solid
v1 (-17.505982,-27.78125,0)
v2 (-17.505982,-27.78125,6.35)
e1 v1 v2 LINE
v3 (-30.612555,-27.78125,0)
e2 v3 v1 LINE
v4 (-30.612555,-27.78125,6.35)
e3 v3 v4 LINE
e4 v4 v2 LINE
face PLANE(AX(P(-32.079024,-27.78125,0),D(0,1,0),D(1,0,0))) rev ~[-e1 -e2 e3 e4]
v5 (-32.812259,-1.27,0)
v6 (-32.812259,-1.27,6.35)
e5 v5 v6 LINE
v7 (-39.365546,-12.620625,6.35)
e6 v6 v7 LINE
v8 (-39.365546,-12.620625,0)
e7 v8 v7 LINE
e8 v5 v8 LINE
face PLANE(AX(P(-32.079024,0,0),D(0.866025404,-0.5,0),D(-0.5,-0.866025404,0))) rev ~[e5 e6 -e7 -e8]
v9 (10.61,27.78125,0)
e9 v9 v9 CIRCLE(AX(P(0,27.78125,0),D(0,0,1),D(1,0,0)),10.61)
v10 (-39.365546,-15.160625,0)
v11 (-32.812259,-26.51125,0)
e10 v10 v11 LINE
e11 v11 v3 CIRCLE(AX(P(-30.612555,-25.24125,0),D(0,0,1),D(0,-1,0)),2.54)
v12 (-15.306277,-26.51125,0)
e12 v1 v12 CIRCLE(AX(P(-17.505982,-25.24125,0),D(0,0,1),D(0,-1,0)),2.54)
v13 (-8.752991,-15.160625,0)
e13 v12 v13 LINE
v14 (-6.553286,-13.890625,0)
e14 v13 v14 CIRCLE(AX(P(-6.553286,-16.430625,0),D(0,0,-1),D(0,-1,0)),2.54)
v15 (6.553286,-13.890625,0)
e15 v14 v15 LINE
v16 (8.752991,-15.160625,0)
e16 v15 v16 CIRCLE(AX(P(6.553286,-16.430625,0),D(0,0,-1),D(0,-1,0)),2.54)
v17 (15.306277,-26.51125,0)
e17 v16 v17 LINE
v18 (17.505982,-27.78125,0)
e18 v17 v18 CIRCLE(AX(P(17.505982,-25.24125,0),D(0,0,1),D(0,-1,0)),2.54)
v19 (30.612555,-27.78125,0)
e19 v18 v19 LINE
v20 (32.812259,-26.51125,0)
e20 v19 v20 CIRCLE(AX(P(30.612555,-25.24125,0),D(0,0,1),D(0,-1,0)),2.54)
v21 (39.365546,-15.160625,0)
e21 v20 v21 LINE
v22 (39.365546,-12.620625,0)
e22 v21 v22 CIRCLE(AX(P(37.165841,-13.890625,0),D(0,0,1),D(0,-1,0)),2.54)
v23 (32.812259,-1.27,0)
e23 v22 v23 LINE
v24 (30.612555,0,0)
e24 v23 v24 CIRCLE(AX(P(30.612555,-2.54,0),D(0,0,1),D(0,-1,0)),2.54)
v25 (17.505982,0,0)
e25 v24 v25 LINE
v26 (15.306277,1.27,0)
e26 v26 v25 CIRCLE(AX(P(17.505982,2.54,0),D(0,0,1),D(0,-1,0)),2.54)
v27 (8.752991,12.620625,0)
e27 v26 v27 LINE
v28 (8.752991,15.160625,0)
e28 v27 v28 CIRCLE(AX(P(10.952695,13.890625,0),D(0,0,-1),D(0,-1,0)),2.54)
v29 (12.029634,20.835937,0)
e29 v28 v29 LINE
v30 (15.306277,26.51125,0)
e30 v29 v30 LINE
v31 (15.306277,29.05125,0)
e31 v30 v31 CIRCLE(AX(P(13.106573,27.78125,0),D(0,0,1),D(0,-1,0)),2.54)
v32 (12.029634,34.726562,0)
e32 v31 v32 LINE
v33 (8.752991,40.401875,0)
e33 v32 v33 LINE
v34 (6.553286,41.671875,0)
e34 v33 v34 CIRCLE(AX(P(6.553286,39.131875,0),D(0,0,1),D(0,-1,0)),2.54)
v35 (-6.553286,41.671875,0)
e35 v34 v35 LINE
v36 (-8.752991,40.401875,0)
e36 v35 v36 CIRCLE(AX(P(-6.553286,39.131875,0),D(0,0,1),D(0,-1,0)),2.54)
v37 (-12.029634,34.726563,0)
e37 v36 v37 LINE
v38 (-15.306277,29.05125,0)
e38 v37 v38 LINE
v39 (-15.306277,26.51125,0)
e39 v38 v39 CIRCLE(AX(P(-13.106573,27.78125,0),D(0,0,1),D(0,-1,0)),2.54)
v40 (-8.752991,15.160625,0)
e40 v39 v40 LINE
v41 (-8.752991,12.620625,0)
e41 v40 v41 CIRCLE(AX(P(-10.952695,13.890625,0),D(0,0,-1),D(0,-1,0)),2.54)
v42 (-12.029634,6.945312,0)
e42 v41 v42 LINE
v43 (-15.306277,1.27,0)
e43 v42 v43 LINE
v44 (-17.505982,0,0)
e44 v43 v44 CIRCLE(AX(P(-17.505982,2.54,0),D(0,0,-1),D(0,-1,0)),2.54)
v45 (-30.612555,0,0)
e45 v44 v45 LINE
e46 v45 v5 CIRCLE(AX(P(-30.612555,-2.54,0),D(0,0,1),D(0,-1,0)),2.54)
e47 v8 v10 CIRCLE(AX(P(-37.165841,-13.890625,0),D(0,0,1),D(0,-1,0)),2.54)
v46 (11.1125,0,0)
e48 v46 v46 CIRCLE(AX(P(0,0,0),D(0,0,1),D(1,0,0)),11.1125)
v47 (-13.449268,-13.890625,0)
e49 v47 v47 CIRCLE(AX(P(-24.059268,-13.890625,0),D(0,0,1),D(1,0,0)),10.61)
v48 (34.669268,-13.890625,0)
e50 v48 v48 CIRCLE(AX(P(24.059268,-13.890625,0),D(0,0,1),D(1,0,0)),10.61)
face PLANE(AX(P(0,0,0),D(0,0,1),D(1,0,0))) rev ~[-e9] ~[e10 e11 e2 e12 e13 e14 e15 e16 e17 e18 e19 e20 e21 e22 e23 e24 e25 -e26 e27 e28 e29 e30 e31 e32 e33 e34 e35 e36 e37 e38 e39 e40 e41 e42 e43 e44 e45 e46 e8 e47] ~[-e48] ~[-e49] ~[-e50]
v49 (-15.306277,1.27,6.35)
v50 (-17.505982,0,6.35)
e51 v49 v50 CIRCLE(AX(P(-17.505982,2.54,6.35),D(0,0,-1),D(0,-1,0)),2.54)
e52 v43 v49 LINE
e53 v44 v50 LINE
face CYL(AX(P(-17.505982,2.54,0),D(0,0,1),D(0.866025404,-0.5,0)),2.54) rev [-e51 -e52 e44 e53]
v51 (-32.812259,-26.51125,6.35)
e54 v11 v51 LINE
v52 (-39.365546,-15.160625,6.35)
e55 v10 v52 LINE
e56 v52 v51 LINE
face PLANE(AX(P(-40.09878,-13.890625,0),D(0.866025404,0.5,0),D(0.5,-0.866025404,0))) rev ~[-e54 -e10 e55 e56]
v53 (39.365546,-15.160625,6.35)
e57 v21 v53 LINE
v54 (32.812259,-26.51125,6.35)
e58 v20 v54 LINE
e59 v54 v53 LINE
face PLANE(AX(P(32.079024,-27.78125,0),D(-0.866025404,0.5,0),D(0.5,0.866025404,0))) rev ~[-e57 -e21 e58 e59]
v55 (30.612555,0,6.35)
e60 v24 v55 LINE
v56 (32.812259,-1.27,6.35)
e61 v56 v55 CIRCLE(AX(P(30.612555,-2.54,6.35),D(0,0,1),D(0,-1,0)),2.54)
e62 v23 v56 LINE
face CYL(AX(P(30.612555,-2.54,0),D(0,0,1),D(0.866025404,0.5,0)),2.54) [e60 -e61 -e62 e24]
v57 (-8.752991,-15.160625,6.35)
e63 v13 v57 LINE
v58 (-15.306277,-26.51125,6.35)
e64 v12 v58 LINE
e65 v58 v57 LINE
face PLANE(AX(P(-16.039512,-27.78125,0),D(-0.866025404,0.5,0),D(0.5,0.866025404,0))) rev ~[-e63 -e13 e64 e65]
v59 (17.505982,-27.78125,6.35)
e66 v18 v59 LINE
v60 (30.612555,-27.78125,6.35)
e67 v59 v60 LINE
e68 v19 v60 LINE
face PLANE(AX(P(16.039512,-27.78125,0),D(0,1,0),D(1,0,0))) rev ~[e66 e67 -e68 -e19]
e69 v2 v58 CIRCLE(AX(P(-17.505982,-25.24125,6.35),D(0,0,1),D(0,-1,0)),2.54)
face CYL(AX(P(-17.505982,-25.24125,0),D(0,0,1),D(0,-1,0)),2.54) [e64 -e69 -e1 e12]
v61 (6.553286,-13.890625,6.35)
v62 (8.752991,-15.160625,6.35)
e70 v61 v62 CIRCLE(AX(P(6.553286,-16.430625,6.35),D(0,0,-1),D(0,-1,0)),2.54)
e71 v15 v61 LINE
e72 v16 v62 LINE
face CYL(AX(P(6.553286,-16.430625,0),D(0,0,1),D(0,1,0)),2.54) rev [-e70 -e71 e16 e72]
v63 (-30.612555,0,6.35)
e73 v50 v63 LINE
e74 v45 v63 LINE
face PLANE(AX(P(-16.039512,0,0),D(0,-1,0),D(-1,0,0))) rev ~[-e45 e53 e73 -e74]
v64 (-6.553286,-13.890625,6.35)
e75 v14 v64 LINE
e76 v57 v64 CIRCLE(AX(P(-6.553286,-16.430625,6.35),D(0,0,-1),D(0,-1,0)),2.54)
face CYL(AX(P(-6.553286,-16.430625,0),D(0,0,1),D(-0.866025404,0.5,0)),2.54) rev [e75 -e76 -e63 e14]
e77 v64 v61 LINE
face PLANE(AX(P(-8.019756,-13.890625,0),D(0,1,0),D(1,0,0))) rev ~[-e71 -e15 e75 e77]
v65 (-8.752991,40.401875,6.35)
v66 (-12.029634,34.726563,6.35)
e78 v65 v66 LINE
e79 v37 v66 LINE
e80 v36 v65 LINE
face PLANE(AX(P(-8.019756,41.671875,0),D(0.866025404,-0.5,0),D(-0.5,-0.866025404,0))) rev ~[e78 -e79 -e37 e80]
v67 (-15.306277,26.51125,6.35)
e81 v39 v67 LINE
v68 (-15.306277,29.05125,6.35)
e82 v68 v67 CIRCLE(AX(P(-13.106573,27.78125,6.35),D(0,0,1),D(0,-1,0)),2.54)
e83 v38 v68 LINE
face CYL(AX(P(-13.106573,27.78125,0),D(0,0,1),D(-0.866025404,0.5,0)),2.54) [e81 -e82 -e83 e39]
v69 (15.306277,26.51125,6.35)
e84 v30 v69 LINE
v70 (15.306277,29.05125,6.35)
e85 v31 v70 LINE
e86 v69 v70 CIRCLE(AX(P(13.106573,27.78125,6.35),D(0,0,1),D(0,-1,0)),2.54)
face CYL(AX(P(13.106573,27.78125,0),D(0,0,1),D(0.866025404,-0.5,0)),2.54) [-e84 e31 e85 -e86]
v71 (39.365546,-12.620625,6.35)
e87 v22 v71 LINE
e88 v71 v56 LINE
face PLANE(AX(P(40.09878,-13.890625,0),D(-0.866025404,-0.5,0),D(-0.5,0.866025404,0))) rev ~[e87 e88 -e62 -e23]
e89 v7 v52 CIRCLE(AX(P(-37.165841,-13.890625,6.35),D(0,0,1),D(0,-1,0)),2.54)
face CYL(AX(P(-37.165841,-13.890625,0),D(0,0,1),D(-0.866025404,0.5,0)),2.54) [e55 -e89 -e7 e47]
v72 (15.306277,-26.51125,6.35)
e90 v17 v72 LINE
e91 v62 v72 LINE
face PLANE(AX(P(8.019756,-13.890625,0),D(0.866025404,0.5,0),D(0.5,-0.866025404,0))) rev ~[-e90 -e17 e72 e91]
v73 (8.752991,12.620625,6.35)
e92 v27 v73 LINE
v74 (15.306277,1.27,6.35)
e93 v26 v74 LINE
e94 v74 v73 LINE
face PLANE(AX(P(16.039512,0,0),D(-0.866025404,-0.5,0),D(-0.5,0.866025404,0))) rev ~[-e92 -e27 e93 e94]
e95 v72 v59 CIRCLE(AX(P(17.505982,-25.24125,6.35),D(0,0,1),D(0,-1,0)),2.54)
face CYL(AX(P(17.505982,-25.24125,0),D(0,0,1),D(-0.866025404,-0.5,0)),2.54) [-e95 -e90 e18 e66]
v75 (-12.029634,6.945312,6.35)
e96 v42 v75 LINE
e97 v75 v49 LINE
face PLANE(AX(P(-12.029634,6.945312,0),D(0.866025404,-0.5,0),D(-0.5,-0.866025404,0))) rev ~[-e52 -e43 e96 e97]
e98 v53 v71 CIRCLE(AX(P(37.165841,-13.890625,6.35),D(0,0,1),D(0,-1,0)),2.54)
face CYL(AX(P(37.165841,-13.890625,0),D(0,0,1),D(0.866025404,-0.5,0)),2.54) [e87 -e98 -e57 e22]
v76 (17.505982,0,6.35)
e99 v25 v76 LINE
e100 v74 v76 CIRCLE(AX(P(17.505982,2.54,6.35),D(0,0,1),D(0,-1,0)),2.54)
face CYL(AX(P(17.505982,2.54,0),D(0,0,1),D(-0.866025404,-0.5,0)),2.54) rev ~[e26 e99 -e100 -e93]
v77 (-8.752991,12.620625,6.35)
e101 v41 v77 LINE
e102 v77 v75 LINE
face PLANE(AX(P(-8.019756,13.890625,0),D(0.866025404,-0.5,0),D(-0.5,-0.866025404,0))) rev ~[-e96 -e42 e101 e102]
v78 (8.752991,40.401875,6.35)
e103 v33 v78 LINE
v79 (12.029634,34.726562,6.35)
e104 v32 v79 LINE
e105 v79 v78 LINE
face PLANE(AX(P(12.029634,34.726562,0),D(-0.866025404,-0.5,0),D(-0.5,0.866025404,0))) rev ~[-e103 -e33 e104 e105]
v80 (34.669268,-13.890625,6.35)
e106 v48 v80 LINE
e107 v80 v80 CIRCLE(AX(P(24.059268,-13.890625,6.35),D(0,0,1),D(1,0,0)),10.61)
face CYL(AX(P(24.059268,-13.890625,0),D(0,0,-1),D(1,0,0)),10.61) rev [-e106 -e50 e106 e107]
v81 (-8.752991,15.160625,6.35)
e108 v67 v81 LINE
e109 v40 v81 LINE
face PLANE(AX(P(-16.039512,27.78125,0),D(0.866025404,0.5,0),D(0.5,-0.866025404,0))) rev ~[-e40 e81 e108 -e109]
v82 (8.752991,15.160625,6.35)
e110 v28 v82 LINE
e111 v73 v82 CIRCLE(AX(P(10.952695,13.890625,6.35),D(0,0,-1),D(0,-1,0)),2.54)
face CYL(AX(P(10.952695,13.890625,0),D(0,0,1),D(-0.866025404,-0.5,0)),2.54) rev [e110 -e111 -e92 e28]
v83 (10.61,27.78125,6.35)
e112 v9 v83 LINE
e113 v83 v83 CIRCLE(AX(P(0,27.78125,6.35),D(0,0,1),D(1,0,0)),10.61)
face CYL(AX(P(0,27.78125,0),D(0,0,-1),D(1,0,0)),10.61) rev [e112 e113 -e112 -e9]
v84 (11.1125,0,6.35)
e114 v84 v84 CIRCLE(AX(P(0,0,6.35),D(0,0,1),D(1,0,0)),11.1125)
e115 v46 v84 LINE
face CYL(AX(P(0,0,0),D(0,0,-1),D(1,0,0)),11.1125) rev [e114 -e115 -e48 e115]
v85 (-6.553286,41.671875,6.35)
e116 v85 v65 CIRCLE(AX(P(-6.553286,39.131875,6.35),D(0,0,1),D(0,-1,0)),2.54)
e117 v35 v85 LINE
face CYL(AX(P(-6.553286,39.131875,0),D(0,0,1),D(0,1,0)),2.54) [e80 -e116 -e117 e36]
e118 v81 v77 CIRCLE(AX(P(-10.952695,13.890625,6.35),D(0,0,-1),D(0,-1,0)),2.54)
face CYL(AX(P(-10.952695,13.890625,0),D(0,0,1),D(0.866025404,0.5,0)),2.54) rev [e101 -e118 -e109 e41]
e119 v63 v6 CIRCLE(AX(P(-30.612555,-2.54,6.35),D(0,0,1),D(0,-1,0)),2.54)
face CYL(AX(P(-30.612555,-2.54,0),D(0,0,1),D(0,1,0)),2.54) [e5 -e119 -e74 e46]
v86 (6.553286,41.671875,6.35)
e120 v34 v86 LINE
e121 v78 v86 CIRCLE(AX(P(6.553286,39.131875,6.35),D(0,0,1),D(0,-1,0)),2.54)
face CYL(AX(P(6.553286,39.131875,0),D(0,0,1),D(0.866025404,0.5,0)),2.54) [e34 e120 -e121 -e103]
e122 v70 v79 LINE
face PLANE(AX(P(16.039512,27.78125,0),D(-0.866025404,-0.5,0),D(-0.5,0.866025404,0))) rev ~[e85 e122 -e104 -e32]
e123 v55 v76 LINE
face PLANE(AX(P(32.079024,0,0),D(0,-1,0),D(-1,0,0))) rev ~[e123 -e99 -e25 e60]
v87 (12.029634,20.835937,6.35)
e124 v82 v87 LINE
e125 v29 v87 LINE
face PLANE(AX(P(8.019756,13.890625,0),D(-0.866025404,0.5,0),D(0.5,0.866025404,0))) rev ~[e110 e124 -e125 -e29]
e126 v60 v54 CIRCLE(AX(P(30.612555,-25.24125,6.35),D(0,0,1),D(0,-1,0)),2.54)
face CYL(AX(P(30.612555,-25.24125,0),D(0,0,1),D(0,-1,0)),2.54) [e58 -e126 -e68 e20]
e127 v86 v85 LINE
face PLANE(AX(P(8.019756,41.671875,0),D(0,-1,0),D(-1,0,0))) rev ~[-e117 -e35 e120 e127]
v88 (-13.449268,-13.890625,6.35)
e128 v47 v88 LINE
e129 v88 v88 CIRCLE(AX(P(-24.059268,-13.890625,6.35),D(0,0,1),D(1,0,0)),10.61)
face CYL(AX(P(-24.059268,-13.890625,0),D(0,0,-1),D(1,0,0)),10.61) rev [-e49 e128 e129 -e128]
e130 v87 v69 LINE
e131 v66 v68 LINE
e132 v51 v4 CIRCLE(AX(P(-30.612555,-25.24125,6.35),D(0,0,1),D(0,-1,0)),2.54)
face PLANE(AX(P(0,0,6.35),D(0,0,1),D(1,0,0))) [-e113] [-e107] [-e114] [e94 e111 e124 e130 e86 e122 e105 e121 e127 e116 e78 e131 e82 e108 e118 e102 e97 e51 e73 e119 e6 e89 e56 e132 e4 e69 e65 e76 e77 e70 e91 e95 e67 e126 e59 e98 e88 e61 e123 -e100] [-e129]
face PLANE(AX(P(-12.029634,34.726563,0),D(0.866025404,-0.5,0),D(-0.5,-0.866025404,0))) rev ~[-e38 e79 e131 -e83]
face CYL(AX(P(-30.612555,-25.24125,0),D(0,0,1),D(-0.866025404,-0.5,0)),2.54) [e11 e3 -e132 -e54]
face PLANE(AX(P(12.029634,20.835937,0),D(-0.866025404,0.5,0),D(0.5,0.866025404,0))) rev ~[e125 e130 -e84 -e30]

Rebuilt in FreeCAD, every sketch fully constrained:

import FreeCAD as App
import Part
import Sketcher
Q = App.Units.Quantity


def edges_at(feature, points):
    """Names of the edges that pass closest to the given points."""
    edges = feature.Shape.Edges
    near = lambda p: min(range(len(edges)), key=lambda i: edges[i].distToShape(Part.Vertex(*p))[0])
    return sorted({f"Edge{near(p) + 1}" for p in points})

doc = App.newDocument("Part")
body = doc.addObject("PartDesign::Body", "Body")

# Sketch on XY plane
sketch1 = body.newObject("Sketcher::SketchObject", "Sketch")
sketch1.AttachmentSupport = (doc.getObject("XY_Plane"), [""])
sketch1.MapMode = "FlatFace"
sketch1.addGeometry(Part.LineSegment(App.Vector(16, 0, 0), App.Vector(8, 14, 0)), False)
sketch1.addGeometry(Part.LineSegment(App.Vector(8, 14, 0), App.Vector(12, 21, 0)), False)
sketch1.addGeometry(Part.LineSegment(App.Vector(12, 21, 0), App.Vector(16, 28, 0)), False)
sketch1.addGeometry(Part.LineSegment(App.Vector(16, 28, 0), App.Vector(12, 35, 0)), False)
sketch1.addGeometry(Part.LineSegment(App.Vector(12, 35, 0), App.Vector(8, 42, 0)), False)
sketch1.addGeometry(Part.LineSegment(App.Vector(8, 42, 0), App.Vector(-8, 42, 0)), False)
sketch1.addGeometry(Part.LineSegment(App.Vector(-8, 42, 0), App.Vector(-12, 35, 0)), False)
sketch1.addGeometry(Part.LineSegment(App.Vector(-12, 35, 0), App.Vector(-16, 28, 0)), False)
sketch1.addGeometry(Part.LineSegment(App.Vector(-16, 28, 0), App.Vector(-8, 14, 0)), False)
sketch1.addGeometry(Part.LineSegment(App.Vector(-8, 14, 0), App.Vector(-12, 7, 0)), False)
sketch1.addGeometry(Part.LineSegment(App.Vector(-12, 7, 0), App.Vector(-16, 0, 0)), False)
sketch1.addGeometry(Part.LineSegment(App.Vector(-16, 0, 0), App.Vector(-32, 0, 0)), False)
sketch1.addGeometry(Part.LineSegment(App.Vector(-32, 0, 0), App.Vector(-40, -14, 0)), False)
sketch1.addGeometry(Part.LineSegment(App.Vector(-40, -14, 0), App.Vector(-32, -28, 0)), False)
sketch1.addGeometry(Part.LineSegment(App.Vector(-32, -28, 0), App.Vector(-16, -28, 0)), False)
sketch1.addGeometry(Part.LineSegment(App.Vector(-16, -28, 0), App.Vector(-8, -14, 0)), False)
sketch1.addGeometry(Part.LineSegment(App.Vector(-8, -14, 0), App.Vector(8, -14, 0)), False)
sketch1.addGeometry(Part.LineSegment(App.Vector(8, -14, 0), App.Vector(16, -28, 0)), False)
sketch1.addGeometry(Part.LineSegment(App.Vector(16, -28, 0), App.Vector(32, -28, 0)), False)
sketch1.addGeometry(Part.LineSegment(App.Vector(32, -28, 0), App.Vector(40, -14, 0)), False)
sketch1.addGeometry(Part.LineSegment(App.Vector(40, -14, 0), App.Vector(32, 0, 0)), False)
sketch1.addGeometry(Part.LineSegment(App.Vector(32, 0, 0), App.Vector(16, 0, 0)), False)
sketch1.addGeometry(Part.Circle(App.Vector(-24, -14, 0), App.Vector(0, 0, 1), 11), False)
sketch1.addGeometry(Part.Circle(App.Vector(24, -14, 0), App.Vector(0, 0, 1), 11), False)
sketch1.addGeometry(Part.Circle(App.Vector(0, 0, 0), App.Vector(0, 0, 1), 11), False)
sketch1.addGeometry(Part.Circle(App.Vector(0, 28, 0), App.Vector(0, 0, 1), 11), False)
sketch1.addConstraint(Sketcher.Constraint("Coincident", 0, 2, 1, 1))
sketch1.addConstraint(Sketcher.Constraint("Coincident", 1, 2, 2, 1))
sketch1.addConstraint(Sketcher.Constraint("Coincident", 2, 2, 3, 1))
sketch1.addConstraint(Sketcher.Constraint("Coincident", 3, 2, 4, 1))
sketch1.addConstraint(Sketcher.Constraint("Coincident", 4, 2, 5, 1))
sketch1.addConstraint(Sketcher.Constraint("Coincident", 5, 2, 6, 1))
sketch1.addConstraint(Sketcher.Constraint("Coincident", 6, 2, 7, 1))
sketch1.addConstraint(Sketcher.Constraint("Coincident", 7, 2, 8, 1))
sketch1.addConstraint(Sketcher.Constraint("Coincident", 8, 2, 9, 1))
sketch1.addConstraint(Sketcher.Constraint("Coincident", 9, 2, 10, 1))
sketch1.addConstraint(Sketcher.Constraint("Coincident", 10, 2, 11, 1))
sketch1.addConstraint(Sketcher.Constraint("Coincident", 11, 2, 12, 1))
sketch1.addConstraint(Sketcher.Constraint("Coincident", 12, 2, 13, 1))
sketch1.addConstraint(Sketcher.Constraint("Coincident", 13, 2, 14, 1))
sketch1.addConstraint(Sketcher.Constraint("Coincident", 14, 2, 15, 1))
sketch1.addConstraint(Sketcher.Constraint("Coincident", 15, 2, 16, 1))
sketch1.addConstraint(Sketcher.Constraint("Coincident", 16, 2, 17, 1))
sketch1.addConstraint(Sketcher.Constraint("Coincident", 17, 2, 18, 1))
sketch1.addConstraint(Sketcher.Constraint("Coincident", 18, 2, 19, 1))
sketch1.addConstraint(Sketcher.Constraint("Coincident", 19, 2, 20, 1))
sketch1.addConstraint(Sketcher.Constraint("Coincident", 20, 2, 21, 1))
sketch1.addConstraint(Sketcher.Constraint("Coincident", 21, 2, 0, 1))
sketch1.addConstraint(Sketcher.Constraint("Horizontal", 5))
sketch1.addConstraint(Sketcher.Constraint("Horizontal", 11))
sketch1.addConstraint(Sketcher.Constraint("Horizontal", 14))
sketch1.addConstraint(Sketcher.Constraint("Horizontal", 16))
sketch1.addConstraint(Sketcher.Constraint("Horizontal", 18))
sketch1.addConstraint(Sketcher.Constraint("Horizontal", 21))
sketch1.addConstraint(Sketcher.Constraint("Coincident", 24, 3, -1, 1))
sketch1.addConstraint(Sketcher.Constraint("Equal", 22, 23))
sketch1.addConstraint(Sketcher.Constraint("Equal", 23, 25))
sketch1.addConstraint(Sketcher.Constraint("Symmetric", 2, 2, 14, 2, -1, 1))
sketch1.addConstraint(Sketcher.Constraint("Symmetric", 0, 2, 15, 2, -1, 1))
sketch1.addConstraint(Sketcher.Constraint("Symmetric", 8, 2, 16, 2, -1, 1))
sketch1.addConstraint(Sketcher.Constraint("Symmetric", 7, 2, 17, 2, -1, 1))
sketch1.addConstraint(Sketcher.Constraint("Symmetric", 11, 2, 20, 2, -1, 1))
sketch1.addConstraint(Sketcher.Constraint("Symmetric", 22, 3, 23, 3, -2))
sketch1.addConstraint(Sketcher.Constraint("Symmetric", 3, 2, 6, 2, -2))
sketch1.addConstraint(Sketcher.Constraint("Symmetric", 2, 2, 7, 2, -2))
sketch1.addConstraint(Sketcher.Constraint("Symmetric", 12, 2, 19, 2, -2))
sketch1.addConstraint(Sketcher.Constraint("Symmetric", 10, 2, 21, 2, -2))
sketch1.addConstraint(Sketcher.Constraint("PointOnObject", 25, 3, -2))
sketch1.addConstraint(Sketcher.Constraint("Parallel", 1, 2))
sketch1.addConstraint(Sketcher.Constraint("Parallel", 0, 3))
sketch1.addConstraint(Sketcher.Constraint("Parallel", 3, 4))
sketch1.addConstraint(Sketcher.Constraint("Parallel", 2, 6))
sketch1.addConstraint(Sketcher.Constraint("Parallel", 6, 7))
sketch1.addConstraint(Sketcher.Constraint("Parallel", 4, 8))
sketch1.addConstraint(Sketcher.Constraint("Parallel", 7, 9))
sketch1.addConstraint(Sketcher.Constraint("Parallel", 10, 12))
sketch1.addConstraint(Sketcher.Constraint("Parallel", 8, 13))
sketch1.addConstraint(Sketcher.Constraint("Parallel", 15, 19))
sketch1.addConstraint(Sketcher.Constraint("Horizontal", 25, 3, 2, 2))
sketch1.addConstraint(Sketcher.Constraint("Horizontal", 23, 3, 12, 2))
sketch1.addConstraint(Sketcher.Constraint("Horizontal", 12, 2, 15, 2))
sketch1.addConstraint(Sketcher.Constraint("Vertical", 1, 2, 3, 2))
sketch1.addConstraint(Sketcher.Constraint("Vertical", 0, 2, 4, 2))
sketch1.addConstraint(Sketcher.Constraint("Vertical", 6, 2, 9, 2))
sketch1.addConstraint(Sketcher.Constraint("Vertical", 7, 2, 10, 2))
sketch1.addConstraint(Sketcher.Constraint("Equal", 5, 11))
sketch1.addConstraint(Sketcher.Constraint("Equal", 1, 2))
sketch1.addConstraint(Sketcher.Constraint("Diameter", 24, Q("0.875 in")))
sketch1.addConstraint(Sketcher.Constraint("Angle", 0, Q("120 deg")))
sketch1.addConstraint(Sketcher.Constraint("Diameter", 22, Q("21.22 mm")))
sketch1.addConstraint(Sketcher.Constraint("DistanceY", 22, 3, -1, 1, Q("0.546875 in")))
sketch1.addConstraint(Sketcher.Constraint("DistanceX", 5, 2, 5, 1, Q("16.039512 mm")))
sketch1.addConstraint(Sketcher.Constraint("DistanceX", 22, 3, -1, 1, Q("24.059268 mm")))
pad1 = body.newObject("PartDesign::Pad", "Pad")
pad1.Profile = sketch1
pad1.Length = Q("0.25 in")
doc.recompute()

fillet = body.newObject("PartDesign::Fillet", "Fillet")
fillet.Base = (pad1, edges_at(pad1, [
    (-8.02, -13.891, 3.175),
    (8.02, -13.891, 3.175),
    (16.04, -27.781, 3.175),
    (32.079, -27.781, 3.175),
    (40.099, -13.891, 3.175),
    (-16.04, -27.781, 3.175),
    (-32.079, -27.781, 3.175),
    (-40.099, -13.891, 3.175),
    (32.079, 0, 3.175),
    (16.04, 0, 3.175),
    (16.04, 27.781, 3.175),
    (8.02, 41.672, 3.175),
    (-8.02, 41.672, 3.175),
    (8.02, 13.891, 3.175),
    (-16.04, 27.781, 3.175),
    (-8.02, 13.891, 3.175),
    (-16.04, 0, 3.175),
    (-32.079, 0, 3.175),
]))
fillet.Radius = Q("0.1 in")

doc.recompute()
